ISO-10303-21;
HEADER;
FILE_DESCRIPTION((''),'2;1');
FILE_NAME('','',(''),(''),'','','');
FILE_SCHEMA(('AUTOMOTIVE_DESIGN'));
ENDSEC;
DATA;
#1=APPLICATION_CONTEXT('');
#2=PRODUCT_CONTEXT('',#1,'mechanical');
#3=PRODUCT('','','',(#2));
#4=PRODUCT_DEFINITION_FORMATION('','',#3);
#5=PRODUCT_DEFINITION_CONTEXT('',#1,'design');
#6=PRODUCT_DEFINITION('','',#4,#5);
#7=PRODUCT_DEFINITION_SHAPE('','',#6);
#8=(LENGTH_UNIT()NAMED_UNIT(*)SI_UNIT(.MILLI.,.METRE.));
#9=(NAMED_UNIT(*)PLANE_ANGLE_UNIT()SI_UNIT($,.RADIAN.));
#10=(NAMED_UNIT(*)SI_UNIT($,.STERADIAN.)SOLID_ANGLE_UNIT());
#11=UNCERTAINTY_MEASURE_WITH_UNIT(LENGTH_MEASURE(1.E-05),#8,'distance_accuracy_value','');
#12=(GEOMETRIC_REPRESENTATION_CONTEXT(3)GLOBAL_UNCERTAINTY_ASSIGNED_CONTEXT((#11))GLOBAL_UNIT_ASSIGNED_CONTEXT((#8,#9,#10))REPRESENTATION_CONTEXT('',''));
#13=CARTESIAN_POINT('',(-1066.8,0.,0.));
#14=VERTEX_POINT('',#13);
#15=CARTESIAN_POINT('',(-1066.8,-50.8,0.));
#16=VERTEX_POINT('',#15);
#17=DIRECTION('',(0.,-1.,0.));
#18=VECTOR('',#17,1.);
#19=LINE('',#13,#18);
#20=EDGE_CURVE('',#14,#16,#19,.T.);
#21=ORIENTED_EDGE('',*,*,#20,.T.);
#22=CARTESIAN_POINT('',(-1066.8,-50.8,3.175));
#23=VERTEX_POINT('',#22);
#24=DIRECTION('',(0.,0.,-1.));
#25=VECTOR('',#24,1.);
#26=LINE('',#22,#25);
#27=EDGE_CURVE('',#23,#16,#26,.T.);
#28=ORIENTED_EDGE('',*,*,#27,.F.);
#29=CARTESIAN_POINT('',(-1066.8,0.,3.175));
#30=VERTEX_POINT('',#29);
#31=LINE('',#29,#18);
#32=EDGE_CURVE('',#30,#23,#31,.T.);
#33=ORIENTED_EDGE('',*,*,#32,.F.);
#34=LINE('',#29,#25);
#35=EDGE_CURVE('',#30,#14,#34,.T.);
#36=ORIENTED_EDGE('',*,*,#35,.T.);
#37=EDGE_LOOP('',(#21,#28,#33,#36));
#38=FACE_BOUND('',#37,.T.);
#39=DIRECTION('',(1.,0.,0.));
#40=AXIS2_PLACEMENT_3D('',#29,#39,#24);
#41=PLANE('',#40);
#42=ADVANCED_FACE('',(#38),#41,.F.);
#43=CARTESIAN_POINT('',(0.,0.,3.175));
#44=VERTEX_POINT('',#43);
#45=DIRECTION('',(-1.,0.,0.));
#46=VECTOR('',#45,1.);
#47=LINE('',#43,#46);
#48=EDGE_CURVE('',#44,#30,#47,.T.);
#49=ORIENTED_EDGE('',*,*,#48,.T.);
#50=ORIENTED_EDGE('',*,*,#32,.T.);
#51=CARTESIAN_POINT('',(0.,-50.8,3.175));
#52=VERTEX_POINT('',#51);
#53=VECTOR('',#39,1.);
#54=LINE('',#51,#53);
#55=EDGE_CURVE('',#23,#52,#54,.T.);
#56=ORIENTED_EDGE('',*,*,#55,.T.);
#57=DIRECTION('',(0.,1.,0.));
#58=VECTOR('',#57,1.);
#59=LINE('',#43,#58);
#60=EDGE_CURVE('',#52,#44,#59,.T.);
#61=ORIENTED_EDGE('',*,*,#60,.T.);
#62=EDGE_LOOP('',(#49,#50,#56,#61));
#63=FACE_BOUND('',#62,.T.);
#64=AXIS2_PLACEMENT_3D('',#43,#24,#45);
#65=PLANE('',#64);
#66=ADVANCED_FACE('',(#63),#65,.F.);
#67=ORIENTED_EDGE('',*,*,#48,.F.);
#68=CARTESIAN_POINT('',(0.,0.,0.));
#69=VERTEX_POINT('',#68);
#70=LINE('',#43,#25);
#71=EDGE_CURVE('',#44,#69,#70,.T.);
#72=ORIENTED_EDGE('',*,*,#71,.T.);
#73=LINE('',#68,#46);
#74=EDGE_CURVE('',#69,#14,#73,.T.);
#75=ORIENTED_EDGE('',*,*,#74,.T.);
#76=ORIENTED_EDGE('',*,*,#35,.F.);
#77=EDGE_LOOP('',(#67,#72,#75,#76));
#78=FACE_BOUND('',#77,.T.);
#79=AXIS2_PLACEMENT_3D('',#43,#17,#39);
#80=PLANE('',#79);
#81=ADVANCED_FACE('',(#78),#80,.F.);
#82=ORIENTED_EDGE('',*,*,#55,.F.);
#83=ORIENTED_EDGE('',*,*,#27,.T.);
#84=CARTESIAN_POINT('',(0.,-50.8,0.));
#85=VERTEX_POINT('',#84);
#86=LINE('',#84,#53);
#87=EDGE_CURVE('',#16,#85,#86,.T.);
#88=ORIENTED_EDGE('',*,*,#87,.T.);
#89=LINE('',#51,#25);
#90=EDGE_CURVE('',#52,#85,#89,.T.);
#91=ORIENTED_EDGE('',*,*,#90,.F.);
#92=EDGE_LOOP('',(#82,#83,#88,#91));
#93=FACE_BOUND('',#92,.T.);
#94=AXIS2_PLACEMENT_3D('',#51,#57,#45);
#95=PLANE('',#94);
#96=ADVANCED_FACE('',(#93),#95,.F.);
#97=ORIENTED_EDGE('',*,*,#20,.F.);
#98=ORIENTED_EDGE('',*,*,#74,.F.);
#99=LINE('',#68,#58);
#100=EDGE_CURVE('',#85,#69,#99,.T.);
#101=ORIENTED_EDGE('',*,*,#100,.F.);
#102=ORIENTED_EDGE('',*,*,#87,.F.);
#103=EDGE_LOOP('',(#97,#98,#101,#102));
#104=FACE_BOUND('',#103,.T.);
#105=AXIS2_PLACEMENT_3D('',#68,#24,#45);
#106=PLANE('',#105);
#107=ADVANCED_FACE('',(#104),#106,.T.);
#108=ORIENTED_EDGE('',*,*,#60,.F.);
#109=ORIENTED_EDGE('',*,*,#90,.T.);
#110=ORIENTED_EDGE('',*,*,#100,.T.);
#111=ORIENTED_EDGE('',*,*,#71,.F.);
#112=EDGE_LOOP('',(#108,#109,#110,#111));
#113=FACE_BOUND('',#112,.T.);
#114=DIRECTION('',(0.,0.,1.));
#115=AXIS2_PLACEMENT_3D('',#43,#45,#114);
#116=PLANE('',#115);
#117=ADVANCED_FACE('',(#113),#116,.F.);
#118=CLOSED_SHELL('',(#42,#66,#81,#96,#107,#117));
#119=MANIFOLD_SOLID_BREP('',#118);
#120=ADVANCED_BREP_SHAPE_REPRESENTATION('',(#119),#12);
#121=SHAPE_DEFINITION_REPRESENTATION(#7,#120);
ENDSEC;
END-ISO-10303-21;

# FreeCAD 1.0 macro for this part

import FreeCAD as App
import Part
import Sketcher
from FreeCAD import Vector
Q = App.Units.Quantity


def add_polygon(sketch, points):
    """Adds a closed chain of lines whose ends are joined by coincident constraints."""
    first, n = sketch.GeometryCount, len(points)
    for a, b in zip(points, points[1:] + points[:1]):
        sketch.addGeometry(Part.LineSegment(App.Vector(*a, 0), App.Vector(*b, 0)), False)
    for i in range(n):
        sketch.addConstraint(Sketcher.Constraint("Coincident", first + i, 2, first + (i + 1) % n, 1))

doc = App.newDocument("Part")
body = doc.addObject("PartDesign::Body", "Body")

sketch1 = body.newObject("Sketcher::SketchObject", "Sketch")
sketch1.AttachmentSupport = (doc.getObject("XY_Plane"), [""])
sketch1.MapMode = "FlatFace"
add_polygon(sketch1, [(-1067, 0), (-1067, -51), (0, -51), (0, 0)])
sketch1.addConstraint(Sketcher.Constraint("Vertical", 0))
sketch1.addConstraint(Sketcher.Constraint("Horizontal", 1))
sketch1.addConstraint(Sketcher.Constraint("Vertical", 2))
sketch1.addConstraint(Sketcher.Constraint("Horizontal", 3))
sketch1.addConstraint(Sketcher.Constraint("Coincident", 2, 2, -1, 1))
sketch1.addConstraint(Sketcher.Constraint("DistanceX", 1, 1, 1, 2, Q("42 in")))
sketch1.addConstraint(Sketcher.Constraint("DistanceY", 0, 2, 0, 1, Q("2 in")))
pad1 = body.newObject("PartDesign::Pad", "Pad")
pad1.Profile = sketch1
pad1.Length = Q("0.125 in")

doc.recompute()
